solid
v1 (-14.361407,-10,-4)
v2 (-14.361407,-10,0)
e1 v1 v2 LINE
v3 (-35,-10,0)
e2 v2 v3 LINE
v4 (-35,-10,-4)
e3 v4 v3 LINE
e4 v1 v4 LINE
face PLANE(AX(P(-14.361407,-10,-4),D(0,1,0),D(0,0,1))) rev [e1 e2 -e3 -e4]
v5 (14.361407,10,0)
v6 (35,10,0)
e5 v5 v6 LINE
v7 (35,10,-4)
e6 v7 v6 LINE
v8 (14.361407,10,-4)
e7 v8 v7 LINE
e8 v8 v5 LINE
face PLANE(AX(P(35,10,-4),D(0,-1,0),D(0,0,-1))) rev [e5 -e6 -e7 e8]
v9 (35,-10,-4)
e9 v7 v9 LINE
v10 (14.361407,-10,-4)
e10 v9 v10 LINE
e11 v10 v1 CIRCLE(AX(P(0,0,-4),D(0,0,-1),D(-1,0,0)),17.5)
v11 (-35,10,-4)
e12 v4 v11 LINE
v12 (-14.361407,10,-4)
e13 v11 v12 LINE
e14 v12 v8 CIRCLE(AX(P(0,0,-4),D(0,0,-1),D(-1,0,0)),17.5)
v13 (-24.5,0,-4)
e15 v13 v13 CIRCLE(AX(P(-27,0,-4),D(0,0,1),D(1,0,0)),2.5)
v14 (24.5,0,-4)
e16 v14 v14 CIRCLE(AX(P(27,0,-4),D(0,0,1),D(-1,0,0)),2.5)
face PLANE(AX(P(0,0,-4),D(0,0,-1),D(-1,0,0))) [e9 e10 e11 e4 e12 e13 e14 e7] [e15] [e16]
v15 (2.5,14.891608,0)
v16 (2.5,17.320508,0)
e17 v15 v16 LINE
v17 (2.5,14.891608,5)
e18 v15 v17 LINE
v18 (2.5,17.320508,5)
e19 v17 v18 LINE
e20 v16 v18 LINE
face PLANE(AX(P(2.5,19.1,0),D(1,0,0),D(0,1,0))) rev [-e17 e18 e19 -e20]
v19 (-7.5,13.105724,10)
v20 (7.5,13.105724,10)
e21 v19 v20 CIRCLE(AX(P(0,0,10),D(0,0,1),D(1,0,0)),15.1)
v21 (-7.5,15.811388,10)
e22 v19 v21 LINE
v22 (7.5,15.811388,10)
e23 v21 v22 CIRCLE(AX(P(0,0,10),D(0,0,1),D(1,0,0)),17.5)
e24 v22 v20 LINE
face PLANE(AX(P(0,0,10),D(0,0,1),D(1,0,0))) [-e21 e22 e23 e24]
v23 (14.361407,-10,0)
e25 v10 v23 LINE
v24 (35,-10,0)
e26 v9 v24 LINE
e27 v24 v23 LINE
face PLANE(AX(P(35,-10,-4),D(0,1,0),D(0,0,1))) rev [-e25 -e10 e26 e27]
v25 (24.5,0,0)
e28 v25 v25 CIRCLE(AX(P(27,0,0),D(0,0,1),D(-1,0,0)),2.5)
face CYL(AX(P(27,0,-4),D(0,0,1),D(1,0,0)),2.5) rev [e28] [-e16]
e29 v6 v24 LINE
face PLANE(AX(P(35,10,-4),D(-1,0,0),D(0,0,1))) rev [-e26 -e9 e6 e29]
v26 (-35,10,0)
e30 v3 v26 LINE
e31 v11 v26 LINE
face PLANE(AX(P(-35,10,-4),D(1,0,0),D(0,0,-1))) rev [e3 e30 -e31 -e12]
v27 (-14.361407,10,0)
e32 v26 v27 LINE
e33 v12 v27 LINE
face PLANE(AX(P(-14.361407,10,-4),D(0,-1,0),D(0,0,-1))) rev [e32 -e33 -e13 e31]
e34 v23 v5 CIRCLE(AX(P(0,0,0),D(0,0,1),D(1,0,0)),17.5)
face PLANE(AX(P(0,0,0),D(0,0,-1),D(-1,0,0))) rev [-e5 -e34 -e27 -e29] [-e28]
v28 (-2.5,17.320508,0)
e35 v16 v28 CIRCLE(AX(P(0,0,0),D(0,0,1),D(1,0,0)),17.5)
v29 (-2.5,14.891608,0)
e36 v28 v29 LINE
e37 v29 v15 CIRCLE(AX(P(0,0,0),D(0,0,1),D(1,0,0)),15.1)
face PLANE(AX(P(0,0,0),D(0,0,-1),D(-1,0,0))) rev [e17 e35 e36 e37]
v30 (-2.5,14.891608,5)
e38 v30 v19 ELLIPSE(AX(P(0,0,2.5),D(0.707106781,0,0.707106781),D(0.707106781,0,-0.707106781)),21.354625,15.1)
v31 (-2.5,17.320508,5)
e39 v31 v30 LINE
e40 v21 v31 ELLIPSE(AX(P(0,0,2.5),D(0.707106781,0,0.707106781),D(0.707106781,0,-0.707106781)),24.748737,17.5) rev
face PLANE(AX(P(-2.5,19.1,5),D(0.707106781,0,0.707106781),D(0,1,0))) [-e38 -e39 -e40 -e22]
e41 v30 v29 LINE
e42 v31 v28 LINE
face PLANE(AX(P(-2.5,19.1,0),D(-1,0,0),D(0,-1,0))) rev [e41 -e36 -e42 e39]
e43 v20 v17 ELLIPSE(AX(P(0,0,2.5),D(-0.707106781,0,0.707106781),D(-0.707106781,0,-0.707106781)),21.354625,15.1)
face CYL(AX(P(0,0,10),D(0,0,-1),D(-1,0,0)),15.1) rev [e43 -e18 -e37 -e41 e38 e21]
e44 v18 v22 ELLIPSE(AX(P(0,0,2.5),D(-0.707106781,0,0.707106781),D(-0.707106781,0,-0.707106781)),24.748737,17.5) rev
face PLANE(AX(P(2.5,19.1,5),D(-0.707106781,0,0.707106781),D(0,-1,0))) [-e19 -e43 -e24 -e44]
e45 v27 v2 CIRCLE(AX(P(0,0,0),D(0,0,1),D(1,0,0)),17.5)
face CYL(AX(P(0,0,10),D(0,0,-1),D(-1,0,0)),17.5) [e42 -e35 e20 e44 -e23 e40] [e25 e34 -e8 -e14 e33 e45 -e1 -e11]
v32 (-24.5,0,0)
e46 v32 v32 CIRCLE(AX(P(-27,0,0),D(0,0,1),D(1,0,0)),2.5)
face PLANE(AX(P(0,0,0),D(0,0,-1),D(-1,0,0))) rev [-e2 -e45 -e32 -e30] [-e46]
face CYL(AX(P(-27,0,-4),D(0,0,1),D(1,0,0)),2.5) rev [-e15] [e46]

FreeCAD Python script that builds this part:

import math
import FreeCAD as App
import Part
import Sketcher
from FreeCAD import Vector


def edges_at(feature, points):
    """Names of the edges that pass closest to the given points."""
    edges = feature.Shape.Edges
    near = lambda p: min(range(len(edges)), key=lambda i: edges[i].distToShape(Part.Vertex(*p))[0])
    return sorted({f"Edge{near(p) + 1}" for p in points})


def add_polygon(sketch, points):
    """Adds a closed chain of lines whose ends are joined by coincident constraints."""
    first, n = sketch.GeometryCount, len(points)
    for a, b in zip(points, points[1:] + points[:1]):
        sketch.addGeometry(Part.LineSegment(App.Vector(*a, 0), App.Vector(*b, 0)), False)
    for i in range(n):
        sketch.addConstraint(Sketcher.Constraint("Coincident", first + i, 2, first + (i + 1) % n, 1))

doc = App.newDocument("Part")
body = doc.addObject("PartDesign::Body", "Body")

# Sketch on XY plane
sketch1 = doc.addObject("Sketcher::SketchObject", "Sketch")
body.addObject(sketch1)
sketch1.AttachmentSupport = (doc.XY_Plane, [""])
sketch1.MapMode = "FlatFace"
sketch1.addGeometry([
    Part.Circle(Vector(0, 0, 0), Vector(0, 0, 1), 18),
    Part.Circle(Vector(0, 0, 0), Vector(0, 0, 1), 15),
], False)
sketch1.addConstraint([
    Sketcher.Constraint("Coincident", 0, 3, -1, 1),
    Sketcher.Constraint("Coincident", 1, 3, -1, 1),
    Sketcher.Constraint("Diameter", 0, 35.0),
    Sketcher.Constraint("Diameter", 1, 30.2),
])
pad1 = doc.addObject("PartDesign::Pad", "Pad")
body.addObject(pad1)
pad1.Profile = sketch1
pad1.Length = 10

# Sketch on XY plane
sketch2 = doc.addObject("Sketcher::SketchObject", "Sketch001")
body.addObject(sketch2)
sketch2.AttachmentSupport = (doc.XY_Plane, [""])
sketch2.MapMode = "FlatFace"
sketch2.addGeometry([
    Part.LineSegment(Vector(-35, 10, 0), Vector(-14, 10, 0)),  # 0
    Part.ArcOfCircle(Part.Circle(Vector(0, 0, 0), Vector(0, 0, 1), 17), math.radians(35), math.radians(145)),  # 1
    Part.LineSegment(Vector(14, 10, 0), Vector(35, 10, 0)),  # 2
    Part.LineSegment(Vector(35, 10, 0), Vector(35, -10, 0)),  # 3
    Part.LineSegment(Vector(35, -10, 0), Vector(14, -10, 0)),  # 4
    Part.ArcOfCircle(Part.Circle(Vector(0, 0, 0), Vector(0, 0, 1), 17), math.radians(-145), math.radians(-35)),  # 5
    Part.LineSegment(Vector(-14, -10, 0), Vector(-35, -10, 0)),  # 6
    Part.LineSegment(Vector(-35, -10, 0), Vector(-35, 10, 0)),  # 7
], False)
sketch2.addConstraint([
    Sketcher.Constraint("Coincident", 0, 2, 1, 2),
    Sketcher.Constraint("Coincident", 1, 1, 2, 1),
    Sketcher.Constraint("Coincident", 2, 2, 3, 1),
    Sketcher.Constraint("Coincident", 3, 2, 4, 1),
    Sketcher.Constraint("Coincident", 4, 2, 5, 2),
    Sketcher.Constraint("Coincident", 5, 1, 6, 1),
    Sketcher.Constraint("Coincident", 6, 2, 7, 1),
    Sketcher.Constraint("Coincident", 7, 2, 0, 1),
    Sketcher.Constraint("Horizontal", 0),
    Sketcher.Constraint("Horizontal", 2),
    Sketcher.Constraint("Vertical", 3),
    Sketcher.Constraint("Horizontal", 4),
    Sketcher.Constraint("Horizontal", 6),
    Sketcher.Constraint("Vertical", 7),
    Sketcher.Constraint("Coincident", 1, 3, -1, 1),
    Sketcher.Constraint("Coincident", 5, 3, -1, 1),
    Sketcher.Constraint("Equal", 1, 5),
    Sketcher.Constraint("Symmetric", 2, 2, 6, 2, -1, 1),
    Sketcher.Constraint("Horizontal", 0, 2, 1, 1),
    Sketcher.Constraint("Horizontal", 4, 2, 5, 1),
    Sketcher.Constraint("Radius", 1, 17.5),
    Sketcher.Constraint("DistanceY", 3, 2, 3, 1, 20.0),
    Sketcher.Constraint("DistanceX", -1, 1, 2, 2, 35.0),
])
pad2 = doc.addObject("PartDesign::Pad", "Pad001")
body.addObject(pad2)
pad2.Profile = sketch2
pad2.Length = 4
pad2.Reversed = True

# Sketch on XY plane
sketch3 = doc.addObject("Sketcher::SketchObject", "Sketch002")
body.addObject(sketch3)
sketch3.AttachmentSupport = (doc.XY_Plane, [""])
sketch3.MapMode = "FlatFace"
sketch3.addGeometry([
    Part.Circle(Vector(-27, 0, 0), Vector(0, 0, 1), 2.5),
    Part.Circle(Vector(27, 0, 0), Vector(0, 0, 1), 2.5),
], False)
sketch3.addConstraint([
    Sketcher.Constraint("Equal", 0, 1),
    Sketcher.Constraint("Symmetric", 0, 3, 1, 3, -1, 1),
    Sketcher.Constraint("PointOnObject", 0, 3, -1),
    Sketcher.Constraint("Diameter", 0, 5.0),
    Sketcher.Constraint("DistanceX", 0, 3, -1, 1, 27.0),
])
pocket1 = doc.addObject("PartDesign::Pocket", "Pocket")
body.addObject(pocket1)
pocket1.Profile = sketch3
pocket1.Length = 4

# Sketch on XY plane
sketch4 = doc.addObject("Sketcher::SketchObject", "Sketch003")
body.addObject(sketch4)
sketch4.AttachmentSupport = (doc.XY_Plane, [""])
sketch4.MapMode = "FlatFace"
sketch4.AttachmentOffset = App.Placement(Vector(0, 0, 10), App.Rotation())
add_polygon(sketch4, [(-2, 19), (-2, 11), (2, 11), (2, 19)])  # lines 0-3
sketch4.addConstraint([
    Sketcher.Constraint("Vertical", 0),
    Sketcher.Constraint("Horizontal", 1),
    Sketcher.Constraint("Vertical", 2),
    Sketcher.Constraint("Horizontal", 3),
    Sketcher.Constraint("DistanceX", 1, 1, 1, 2, 5.0),
    Sketcher.Constraint("DistanceY", 0, 2, 0, 1, 8.0),
    Sketcher.Constraint("DistanceX", 0, 2, -1, 1, 2.5),
    Sketcher.Constraint("DistanceY", -1, 1, 0, 2, 11.1),
])
pocket2 = doc.addObject("PartDesign::Pocket", "Pocket001")
body.addObject(pocket2)
pocket2.Profile = sketch4
pocket2.Length = 10
doc.recompute()

chamfer = doc.addObject("PartDesign::Chamfer", "Chamfer")
body.addObject(chamfer)
chamfer.Base = (pocket2, edges_at(pocket2, [(2.5, 16.106, 10), (-2.5, 16.106, 10)]))
chamfer.Size = 5

doc.recompute()
